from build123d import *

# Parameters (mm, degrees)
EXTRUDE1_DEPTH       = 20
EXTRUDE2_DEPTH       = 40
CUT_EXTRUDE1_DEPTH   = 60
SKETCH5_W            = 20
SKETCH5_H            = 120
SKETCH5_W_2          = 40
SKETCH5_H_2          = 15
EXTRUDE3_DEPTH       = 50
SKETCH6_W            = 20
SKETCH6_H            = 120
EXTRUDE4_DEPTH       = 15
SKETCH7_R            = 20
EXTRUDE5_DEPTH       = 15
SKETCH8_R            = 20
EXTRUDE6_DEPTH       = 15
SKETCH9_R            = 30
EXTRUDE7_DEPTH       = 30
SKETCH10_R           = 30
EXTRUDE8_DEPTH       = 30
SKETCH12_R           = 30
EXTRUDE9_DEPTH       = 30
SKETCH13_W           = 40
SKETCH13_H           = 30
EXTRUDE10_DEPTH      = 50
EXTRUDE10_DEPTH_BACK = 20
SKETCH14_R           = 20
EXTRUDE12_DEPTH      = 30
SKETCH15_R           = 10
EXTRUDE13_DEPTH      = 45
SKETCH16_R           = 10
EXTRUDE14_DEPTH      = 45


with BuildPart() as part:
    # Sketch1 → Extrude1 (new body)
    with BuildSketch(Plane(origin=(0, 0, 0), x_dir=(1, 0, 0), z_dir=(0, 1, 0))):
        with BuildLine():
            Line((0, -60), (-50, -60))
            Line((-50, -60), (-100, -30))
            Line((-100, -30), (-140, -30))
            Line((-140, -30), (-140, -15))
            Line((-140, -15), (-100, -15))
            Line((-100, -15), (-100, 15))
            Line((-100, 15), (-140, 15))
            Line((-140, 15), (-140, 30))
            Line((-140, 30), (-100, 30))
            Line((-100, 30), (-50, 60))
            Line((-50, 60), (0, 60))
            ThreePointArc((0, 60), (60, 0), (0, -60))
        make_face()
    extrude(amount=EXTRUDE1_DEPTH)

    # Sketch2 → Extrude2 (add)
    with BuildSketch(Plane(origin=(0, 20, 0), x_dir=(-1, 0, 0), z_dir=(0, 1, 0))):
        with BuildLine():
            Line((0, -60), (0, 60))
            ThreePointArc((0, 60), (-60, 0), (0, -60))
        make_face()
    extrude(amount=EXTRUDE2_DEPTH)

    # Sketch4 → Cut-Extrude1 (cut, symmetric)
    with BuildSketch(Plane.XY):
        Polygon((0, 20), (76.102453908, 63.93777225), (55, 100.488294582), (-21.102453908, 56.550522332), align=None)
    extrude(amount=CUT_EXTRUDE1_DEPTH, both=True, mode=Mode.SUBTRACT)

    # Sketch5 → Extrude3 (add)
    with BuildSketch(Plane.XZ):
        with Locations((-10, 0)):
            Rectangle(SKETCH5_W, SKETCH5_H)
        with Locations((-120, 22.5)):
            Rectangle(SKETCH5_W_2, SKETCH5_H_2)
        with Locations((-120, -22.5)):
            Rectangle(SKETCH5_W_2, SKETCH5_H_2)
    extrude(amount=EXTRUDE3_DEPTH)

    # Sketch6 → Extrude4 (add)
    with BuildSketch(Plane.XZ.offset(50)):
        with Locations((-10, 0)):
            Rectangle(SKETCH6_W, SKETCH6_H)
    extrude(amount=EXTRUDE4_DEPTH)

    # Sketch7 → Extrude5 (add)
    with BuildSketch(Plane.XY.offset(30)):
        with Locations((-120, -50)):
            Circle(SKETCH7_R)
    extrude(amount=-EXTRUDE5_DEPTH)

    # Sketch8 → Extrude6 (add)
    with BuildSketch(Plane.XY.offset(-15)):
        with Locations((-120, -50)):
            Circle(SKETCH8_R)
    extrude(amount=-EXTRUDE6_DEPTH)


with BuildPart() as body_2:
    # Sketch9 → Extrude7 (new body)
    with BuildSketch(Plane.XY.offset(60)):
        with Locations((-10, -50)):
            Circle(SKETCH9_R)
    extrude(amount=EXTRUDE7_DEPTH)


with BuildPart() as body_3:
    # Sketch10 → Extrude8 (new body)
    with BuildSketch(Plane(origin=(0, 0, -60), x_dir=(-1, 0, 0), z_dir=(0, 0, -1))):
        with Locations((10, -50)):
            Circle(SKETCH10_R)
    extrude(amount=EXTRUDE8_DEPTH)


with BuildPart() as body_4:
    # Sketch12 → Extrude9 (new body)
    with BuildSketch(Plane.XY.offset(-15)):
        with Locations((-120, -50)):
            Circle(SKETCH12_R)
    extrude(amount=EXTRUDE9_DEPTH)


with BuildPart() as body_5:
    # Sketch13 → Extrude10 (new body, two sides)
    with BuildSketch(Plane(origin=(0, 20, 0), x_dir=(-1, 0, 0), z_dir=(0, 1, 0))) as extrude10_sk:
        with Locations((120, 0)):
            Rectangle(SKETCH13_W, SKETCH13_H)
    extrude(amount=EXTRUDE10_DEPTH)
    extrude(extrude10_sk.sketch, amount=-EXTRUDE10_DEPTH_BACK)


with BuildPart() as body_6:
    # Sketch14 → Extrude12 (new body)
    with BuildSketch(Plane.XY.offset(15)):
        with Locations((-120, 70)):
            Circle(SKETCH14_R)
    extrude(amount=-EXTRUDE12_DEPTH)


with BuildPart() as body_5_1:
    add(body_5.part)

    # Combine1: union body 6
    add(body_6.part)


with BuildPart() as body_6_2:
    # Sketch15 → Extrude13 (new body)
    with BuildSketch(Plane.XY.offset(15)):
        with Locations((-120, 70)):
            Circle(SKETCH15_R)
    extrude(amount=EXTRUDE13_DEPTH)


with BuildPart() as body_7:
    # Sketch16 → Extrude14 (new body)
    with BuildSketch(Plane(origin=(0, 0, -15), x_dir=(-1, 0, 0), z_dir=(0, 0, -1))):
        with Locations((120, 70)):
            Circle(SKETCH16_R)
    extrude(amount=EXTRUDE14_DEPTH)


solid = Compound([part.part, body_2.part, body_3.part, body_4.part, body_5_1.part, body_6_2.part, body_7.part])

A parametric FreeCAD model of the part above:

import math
import FreeCAD as App
import Part
import Sketcher
Q = App.Units.Quantity


def add_polygon(sketch, points):
    """Adds a closed chain of lines whose ends are joined by coincident constraints."""
    first, n = sketch.GeometryCount, len(points)
    for a, b in zip(points, points[1:] + points[:1]):
        sketch.addGeometry(Part.LineSegment(App.Vector(*a, 0), App.Vector(*b, 0)), False)
    for i in range(n):
        sketch.addConstraint(Sketcher.Constraint("Coincident", first + i, 2, first + (i + 1) % n, 1))

doc = App.newDocument("Part")
body = doc.addObject("PartDesign::Body", "Body")

sketch1 = body.newObject("Sketcher::SketchObject", "Sketch")
sketch1.AttachmentSupport = (doc.getObject("XZ_Plane"), [""])
sketch1.MapMode = "FlatFace"
sketch1.addGeometry(Part.LineSegment(App.Vector(-50, 60, 0), App.Vector(0, 60, 0)), False)
sketch1.addGeometry(Part.ArcOfCircle(Part.Circle(App.Vector(0, 0, 0), App.Vector(0, 0, 1), 60), math.radians(-90), math.radians(90)), False)
sketch1.addGeometry(Part.LineSegment(App.Vector(0, -60, 0), App.Vector(-50, -60, 0)), False)
sketch1.addGeometry(Part.LineSegment(App.Vector(-50, -60, 0), App.Vector(-100, -30, 0)), False)
sketch1.addGeometry(Part.LineSegment(App.Vector(-100, -30, 0), App.Vector(-140, -30, 0)), False)
sketch1.addGeometry(Part.LineSegment(App.Vector(-140, -30, 0), App.Vector(-140, -15, 0)), False)
sketch1.addGeometry(Part.LineSegment(App.Vector(-140, -15, 0), App.Vector(-100, -15, 0)), False)
sketch1.addGeometry(Part.LineSegment(App.Vector(-100, -15, 0), App.Vector(-100, 15, 0)), False)
sketch1.addGeometry(Part.LineSegment(App.Vector(-100, 15, 0), App.Vector(-140, 15, 0)), False)
sketch1.addGeometry(Part.LineSegment(App.Vector(-140, 15, 0), App.Vector(-140, 30, 0)), False)
sketch1.addGeometry(Part.LineSegment(App.Vector(-140, 30, 0), App.Vector(-100, 30, 0)), False)
sketch1.addGeometry(Part.LineSegment(App.Vector(-100, 30, 0), App.Vector(-50, 60, 0)), False)
sketch1.addConstraint(Sketcher.Constraint("Tangent", 0, 2, 1, 2))
sketch1.addConstraint(Sketcher.Constraint("Tangent", 1, 1, 2, 1))
sketch1.addConstraint(Sketcher.Constraint("Coincident", 2, 2, 3, 1))
sketch1.addConstraint(Sketcher.Constraint("Coincident", 3, 2, 4, 1))
sketch1.addConstraint(Sketcher.Constraint("Coincident", 4, 2, 5, 1))
sketch1.addConstraint(Sketcher.Constraint("Coincident", 5, 2, 6, 1))
sketch1.addConstraint(Sketcher.Constraint("Coincident", 6, 2, 7, 1))
sketch1.addConstraint(Sketcher.Constraint("Coincident", 7, 2, 8, 1))
sketch1.addConstraint(Sketcher.Constraint("Coincident", 8, 2, 9, 1))
sketch1.addConstraint(Sketcher.Constraint("Coincident", 9, 2, 10, 1))
sketch1.addConstraint(Sketcher.Constraint("Coincident", 10, 2, 11, 1))
sketch1.addConstraint(Sketcher.Constraint("Coincident", 11, 2, 0, 1))
sketch1.addConstraint(Sketcher.Constraint("Horizontal", 0))
sketch1.addConstraint(Sketcher.Constraint("Horizontal", 2))
sketch1.addConstraint(Sketcher.Constraint("Horizontal", 4))
sketch1.addConstraint(Sketcher.Constraint("Vertical", 5))
sketch1.addConstraint(Sketcher.Constraint("Horizontal", 6))
sketch1.addConstraint(Sketcher.Constraint("Vertical", 7))
sketch1.addConstraint(Sketcher.Constraint("Horizontal", 8))
sketch1.addConstraint(Sketcher.Constraint("Vertical", 9))
sketch1.addConstraint(Sketcher.Constraint("Horizontal", 10))
sketch1.addConstraint(Sketcher.Constraint("Coincident", 1, 3, -1, 1))
sketch1.addConstraint(Sketcher.Constraint("Symmetric", 5, 2, 8, 2, -1))
sketch1.addConstraint(Sketcher.Constraint("Symmetric", 3, 2, 10, 2, -1))
sketch1.addConstraint(Sketcher.Constraint("Vertical", 3, 2, 6, 2))
sketch1.addConstraint(Sketcher.Constraint("Vertical", 2, 2, 11, 2))
sketch1.addConstraint(Sketcher.Constraint("Radius", 1, 60.0))
sketch1.addConstraint(Sketcher.Constraint("DistanceX", 0, 1, 0, 2, 50.0))
sketch1.addConstraint(Sketcher.Constraint("DistanceX", 4, 2, 4, 1, 40.0))
sketch1.addConstraint(Sketcher.Constraint("DistanceY", 5, 1, 5, 2, 15.0))
sketch1.addConstraint(Sketcher.Constraint("DistanceY", 7, 1, 7, 2, 30.0))
sketch1.addConstraint(Sketcher.Constraint("DistanceX", 3, 2, -1, 1, 100.0))
pad1 = body.newObject("PartDesign::Pad", "Pad")
pad1.Profile = sketch1
pad1.Length = 20
pad1.Reversed = True

sketch2 = body.newObject("Sketcher::SketchObject", "Sketch001")
sketch2.AttachmentSupport = (doc.getObject("XZ_Plane"), [""])
sketch2.MapMode = "FlatFace"
sketch2.AttachmentOffset = App.Placement(App.Vector(0, 0, -20), App.Rotation())
sketch2.addGeometry(Part.LineSegment(App.Vector(0, -60, 0), App.Vector(0, 60, 0)), False)
sketch2.addGeometry(Part.ArcOfCircle(Part.Circle(App.Vector(0, 0, 0), App.Vector(0, 0, 1), 60), math.radians(-90), math.radians(90)), False)
sketch2.addConstraint(Sketcher.Constraint("Coincident", 0, 1, 1, 1))
sketch2.addConstraint(Sketcher.Constraint("Coincident", 1, 2, 0, 2))
sketch2.addConstraint(Sketcher.Constraint("Vertical", 0))
sketch2.addConstraint(Sketcher.Constraint("Coincident", 1, 3, -1, 1))
sketch2.addConstraint(Sketcher.Constraint("PointOnObject", 0, 1, -2))
sketch2.addConstraint(Sketcher.Constraint("Radius", 1, 60.0))
pad2 = body.newObject("PartDesign::Pad", "Pad001")
pad2.Profile = sketch2
pad2.Length = 40
pad2.Reversed = True

sketch3 = body.newObject("Sketcher::SketchObject", "Sketch002")
sketch3.AttachmentSupport = (doc.getObject("XY_Plane"), [""])
sketch3.MapMode = "FlatFace"
add_polygon(sketch3, [(0, 20), (76, 64), (55, 100), (-21, 57)])
sketch3.addConstraint(Sketcher.Constraint("PointOnObject", 3, 2, -2))
sketch3.addConstraint(Sketcher.Constraint("Perpendicular", 0, 1))
sketch3.addConstraint(Sketcher.Constraint("Perpendicular", 1, 2))
sketch3.addConstraint(Sketcher.Constraint("Perpendicular", 2, 3))
sketch3.addConstraint(Sketcher.Constraint("Angle", 0, Q("30 deg")))
sketch3.addConstraint(Sketcher.Constraint("DistanceX", -1, 1, 1, 2, 55.0))
sketch3.addConstraint(Sketcher.Constraint("DistanceY", -1, 1, 3, 2, 20.0))
sketch3.addConstraint(Sketcher.Constraint("DistanceY", 2, 2, 0, 2, 7.38725))
pocket1 = body.newObject("PartDesign::Pocket", "Pocket")
pocket1.Profile = sketch3
pocket1.Length = 120
pocket1.Midplane = True

sketch4 = body.newObject("Sketcher::SketchObject", "Sketch003")
sketch4.AttachmentSupport = (doc.getObject("XZ_Plane"), [""])
sketch4.MapMode = "FlatFace"
add_polygon(sketch4, [(-20, 60), (-20, -60), (0, -60), (0, 60)])
add_polygon(sketch4, [(-140, 30), (-140, 15), (-100, 15), (-100, 30)])
add_polygon(sketch4, [(-140, -15), (-140, -30), (-100, -30), (-100, -15)])
sketch4.addConstraint(Sketcher.Constraint("Vertical", 0))
sketch4.addConstraint(Sketcher.Constraint("Horizontal", 1))
sketch4.addConstraint(Sketcher.Constraint("Vertical", 2))
sketch4.addConstraint(Sketcher.Constraint("Horizontal", 3))
sketch4.addConstraint(Sketcher.Constraint("Vertical", 4))
sketch4.addConstraint(Sketcher.Constraint("Horizontal", 5))
sketch4.addConstraint(Sketcher.Constraint("Vertical", 6))
sketch4.addConstraint(Sketcher.Constraint("Horizontal", 7))
sketch4.addConstraint(Sketcher.Constraint("Vertical", 8))
sketch4.addConstraint(Sketcher.Constraint("Horizontal", 9))
sketch4.addConstraint(Sketcher.Constraint("Vertical", 10))
sketch4.addConstraint(Sketcher.Constraint("Horizontal", 11))
sketch4.addConstraint(Sketcher.Constraint("Symmetric", 1, 2, 2, 2, -1, 1))
sketch4.addConstraint(Sketcher.Constraint("Symmetric", 7, 2, 8, 2, -1))
sketch4.addConstraint(Sketcher.Constraint("Symmetric", 5, 2, 10, 2, -1))
sketch4.addConstraint(Sketcher.Constraint("DistanceX", 1, 1, 1, 2, 20.0))
sketch4.addConstraint(Sketcher.Constraint("DistanceX", 5, 1, 5, 2, 40.0))
sketch4.addConstraint(Sketcher.Constraint("DistanceY", 0, 2, 0, 1, 120.0))
sketch4.addConstraint(Sketcher.Constraint("DistanceY", 4, 2, 4, 1, 15.0))
sketch4.addConstraint(Sketcher.Constraint("DistanceX", 4, 2, -1, 1, 140.0))
sketch4.addConstraint(Sketcher.Constraint("DistanceY", -1, 1, 4, 2, 15.0))
pad3 = body.newObject("PartDesign::Pad", "Pad002")
pad3.Profile = sketch4
pad3.Length = 50

sketch5 = body.newObject("Sketcher::SketchObject", "Sketch004")
sketch5.AttachmentSupport = (doc.getObject("XZ_Plane"), [""])
sketch5.MapMode = "FlatFace"
sketch5.AttachmentOffset = App.Placement(App.Vector(0, 0, 50), App.Rotation())
add_polygon(sketch5, [(-20, 60), (-20, -60), (0, -60), (0, 60)])
sketch5.addConstraint(Sketcher.Constraint("Vertical", 0))
sketch5.addConstraint(Sketcher.Constraint("Horizontal", 1))
sketch5.addConstraint(Sketcher.Constraint("Vertical", 2))
sketch5.addConstraint(Sketcher.Constraint("Horizontal", 3))
sketch5.addConstraint(Sketcher.Constraint("Symmetric", 1, 2, 2, 2, -1, 1))
sketch5.addConstraint(Sketcher.Constraint("DistanceX", 1, 1, 1, 2, 20.0))
sketch5.addConstraint(Sketcher.Constraint("DistanceY", 0, 2, 0, 1, 120.0))
pad4 = body.newObject("PartDesign::Pad", "Pad003")
pad4.Profile = sketch5
pad4.Length = 15

sketch6 = body.newObject("Sketcher::SketchObject", "Sketch005")
sketch6.AttachmentSupport = (doc.getObject("XY_Plane"), [""])
sketch6.MapMode = "FlatFace"
sketch6.AttachmentOffset = App.Placement(App.Vector(0, 0, 30), App.Rotation())
sketch6.addGeometry(Part.Circle(App.Vector(-120, -50, 0), App.Vector(0, 0, 1), 20), False)
sketch6.addConstraint(Sketcher.Constraint("Diameter", 0, 40.0))
sketch6.addConstraint(Sketcher.Constraint("DistanceX", 0, 3, -1, 1, 120.0))
sketch6.addConstraint(Sketcher.Constraint("DistanceY", 0, 3, -1, 1, 50.0))
pad5 = body.newObject("PartDesign::Pad", "Pad004")
pad5.Profile = sketch6
pad5.Length = 15
pad5.Reversed = True

sketch7 = body.newObject("Sketcher::SketchObject", "Sketch006")
sketch7.AttachmentSupport = (doc.getObject("XY_Plane"), [""])
sketch7.MapMode = "FlatFace"
sketch7.AttachmentOffset = App.Placement(App.Vector(0, 0, -15), App.Rotation())
sketch7.addGeometry(Part.Circle(App.Vector(-120, -50, 0), App.Vector(0, 0, 1), 20), False)
sketch7.addConstraint(Sketcher.Constraint("Diameter", 0, 40.0))
sketch7.addConstraint(Sketcher.Constraint("DistanceX", 0, 3, -1, 1, 120.0))
sketch7.addConstraint(Sketcher.Constraint("DistanceY", 0, 3, -1, 1, 50.0))
pad6 = body.newObject("PartDesign::Pad", "Pad005")
pad6.Profile = sketch7
pad6.Length = 15
pad6.Reversed = True
body2 = doc.addObject("PartDesign::Body", "Body001")

sketch8 = body2.newObject("Sketcher::SketchObject", "Sketch007")
sketch8.AttachmentSupport = (doc.getObject("XY_Plane001"), [""])
sketch8.MapMode = "FlatFace"
sketch8.AttachmentOffset = App.Placement(App.Vector(0, 0, 60), App.Rotation())
sketch8.addGeometry(Part.Circle(App.Vector(-10, -50, 0), App.Vector(0, 0, 1), 30), False)
sketch8.addConstraint(Sketcher.Constraint("Diameter", 0, 60.0))
sketch8.addConstraint(Sketcher.Constraint("DistanceX", 0, 3, -1, 1, 10.0))
sketch8.addConstraint(Sketcher.Constraint("DistanceY", 0, 3, -1, 1, 50.0))
pad7 = body2.newObject("PartDesign::Pad", "Pad006")
pad7.Profile = sketch8
pad7.Length = 30
body3 = doc.addObject("PartDesign::Body", "Body002")

sketch9 = body3.newObject("Sketcher::SketchObject", "Sketch008")
sketch9.AttachmentSupport = (doc.getObject("XY_Plane002"), [""])
sketch9.MapMode = "FlatFace"
sketch9.AttachmentOffset = App.Placement(App.Vector(0, 0, -60), App.Rotation())
sketch9.addGeometry(Part.Circle(App.Vector(-10, -50, 0), App.Vector(0, 0, 1), 30), False)
sketch9.addConstraint(Sketcher.Constraint("Diameter", 0, 60.0))
sketch9.addConstraint(Sketcher.Constraint("DistanceX", 0, 3, -1, 1, 10.0))
sketch9.addConstraint(Sketcher.Constraint("DistanceY", 0, 3, -1, 1, 50.0))
pad8 = body3.newObject("PartDesign::Pad", "Pad007")
pad8.Profile = sketch9
pad8.Length = 30
pad8.Reversed = True
body4 = doc.addObject("PartDesign::Body", "Body003")

sketch10 = body4.newObject("Sketcher::SketchObject", "Sketch009")
sketch10.AttachmentSupport = (doc.getObject("XY_Plane003"), [""])
sketch10.MapMode = "FlatFace"
sketch10.AttachmentOffset = App.Placement(App.Vector(0, 0, -15), App.Rotation())
sketch10.addGeometry(Part.Circle(App.Vector(-120, -50, 0), App.Vector(0, 0, 1), 30), False)
sketch10.addConstraint(Sketcher.Constraint("Diameter", 0, 60.0))
sketch10.addConstraint(Sketcher.Constraint("DistanceX", 0, 3, -1, 1, 120.0))
sketch10.addConstraint(Sketcher.Constraint("DistanceY", 0, 3, -1, 1, 50.0))
pad9 = body4.newObject("PartDesign::Pad", "Pad008")
pad9.Profile = sketch10
pad9.Length = 30
body5 = doc.addObject("PartDesign::Body", "Body004")

sketch11 = body5.newObject("Sketcher::SketchObject", "Sketch010")
sketch11.AttachmentSupport = (doc.getObject("XZ_Plane004"), [""])
sketch11.MapMode = "FlatFace"
sketch11.AttachmentOffset = App.Placement(App.Vector(0, 0, -20), App.Rotation())
add_polygon(sketch11, [(-100, 15), (-100, -15), (-140, -15), (-140, 15)])
sketch11.addConstraint(Sketcher.Constraint("Vertical", 0))
sketch11.addConstraint(Sketcher.Constraint("Horizontal", 1))
sketch11.addConstraint(Sketcher.Constraint("Vertical", 2))
sketch11.addConstraint(Sketcher.Constraint("Horizontal", 3))
sketch11.addConstraint(Sketcher.Constraint("DistanceX", 1, 2, 1, 1, 40.0))
sketch11.addConstraint(Sketcher.Constraint("DistanceY", 0, 2, 0, 1, 30.0))
sketch11.addConstraint(Sketcher.Constraint("DistanceX", 0, 2, -1, 1, 100.0))
sketch11.addConstraint(Sketcher.Constraint("DistanceY", 0, 2, -1, 1, 15.0))
pad10 = body5.newObject("PartDesign::Pad", "Pad009")
pad10.Profile = sketch11
pad10.Type = "TwoLengths"
pad10.Length = 50
pad10.Length2 = 20
pad10.Reversed = True
body6 = doc.addObject("PartDesign::Body", "Body005")

sketch12 = body6.newObject("Sketcher::SketchObject", "Sketch011")
sketch12.AttachmentSupport = (doc.getObject("XY_Plane005"), [""])
sketch12.MapMode = "FlatFace"
sketch12.AttachmentOffset = App.Placement(App.Vector(0, 0, 15), App.Rotation())
sketch12.addGeometry(Part.Circle(App.Vector(-120, 70, 0), App.Vector(0, 0, 1), 20), False)
sketch12.addConstraint(Sketcher.Constraint("Diameter", 0, 40.0))
sketch12.addConstraint(Sketcher.Constraint("DistanceX", 0, 3, -1, 1, 120.0))
sketch12.addConstraint(Sketcher.Constraint("DistanceY", -1, 1, 0, 3, 70.0))
pad11 = body6.newObject("PartDesign::Pad", "Pad010")
pad11.Profile = sketch12
pad11.Length = 30
pad11.Reversed = True
doc.recompute()

boolean = body5.newObject("PartDesign::Boolean", "Boolean")
boolean.Type = "Fuse"
boolean.addObjects([body6])
body7 = doc.addObject("PartDesign::Body", "Body006")

sketch13 = body7.newObject("Sketcher::SketchObject", "Sketch012")
sketch13.AttachmentSupport = (doc.getObject("XY_Plane006"), [""])
sketch13.MapMode = "FlatFace"
sketch13.AttachmentOffset = App.Placement(App.Vector(0, 0, 15), App.Rotation())
sketch13.addGeometry(Part.Circle(App.Vector(-120, 70, 0), App.Vector(0, 0, 1), 10), False)
sketch13.addConstraint(Sketcher.Constraint("Diameter", 0, 20.0))
sketch13.addConstraint(Sketcher.Constraint("DistanceX", 0, 3, -1, 1, 120.0))
sketch13.addConstraint(Sketcher.Constraint("DistanceY", -1, 1, 0, 3, 70.0))
pad12 = body7.newObject("PartDesign::Pad", "Pad011")
pad12.Profile = sketch13
pad12.Length = 45
body8 = doc.addObject("PartDesign::Body", "Body007")

sketch14 = body8.newObject("Sketcher::SketchObject", "Sketch013")
sketch14.AttachmentSupport = (doc.getObject("XY_Plane007"), [""])
sketch14.MapMode = "FlatFace"
sketch14.AttachmentOffset = App.Placement(App.Vector(0, 0, -15), App.Rotation())
sketch14.addGeometry(Part.Circle(App.Vector(-120, 70, 0), App.Vector(0, 0, 1), 10), False)
sketch14.addConstraint(Sketcher.Constraint("Diameter", 0, 20.0))
sketch14.addConstraint(Sketcher.Constraint("DistanceX", 0, 3, -1, 1, 120.0))
sketch14.addConstraint(Sketcher.Constraint("DistanceY", -1, 1, 0, 3, 70.0))
pad13 = body8.newObject("PartDesign::Pad", "Pad012")
pad13.Profile = sketch14
pad13.Length = 45
pad13.Reversed = True

doc.recompute()
